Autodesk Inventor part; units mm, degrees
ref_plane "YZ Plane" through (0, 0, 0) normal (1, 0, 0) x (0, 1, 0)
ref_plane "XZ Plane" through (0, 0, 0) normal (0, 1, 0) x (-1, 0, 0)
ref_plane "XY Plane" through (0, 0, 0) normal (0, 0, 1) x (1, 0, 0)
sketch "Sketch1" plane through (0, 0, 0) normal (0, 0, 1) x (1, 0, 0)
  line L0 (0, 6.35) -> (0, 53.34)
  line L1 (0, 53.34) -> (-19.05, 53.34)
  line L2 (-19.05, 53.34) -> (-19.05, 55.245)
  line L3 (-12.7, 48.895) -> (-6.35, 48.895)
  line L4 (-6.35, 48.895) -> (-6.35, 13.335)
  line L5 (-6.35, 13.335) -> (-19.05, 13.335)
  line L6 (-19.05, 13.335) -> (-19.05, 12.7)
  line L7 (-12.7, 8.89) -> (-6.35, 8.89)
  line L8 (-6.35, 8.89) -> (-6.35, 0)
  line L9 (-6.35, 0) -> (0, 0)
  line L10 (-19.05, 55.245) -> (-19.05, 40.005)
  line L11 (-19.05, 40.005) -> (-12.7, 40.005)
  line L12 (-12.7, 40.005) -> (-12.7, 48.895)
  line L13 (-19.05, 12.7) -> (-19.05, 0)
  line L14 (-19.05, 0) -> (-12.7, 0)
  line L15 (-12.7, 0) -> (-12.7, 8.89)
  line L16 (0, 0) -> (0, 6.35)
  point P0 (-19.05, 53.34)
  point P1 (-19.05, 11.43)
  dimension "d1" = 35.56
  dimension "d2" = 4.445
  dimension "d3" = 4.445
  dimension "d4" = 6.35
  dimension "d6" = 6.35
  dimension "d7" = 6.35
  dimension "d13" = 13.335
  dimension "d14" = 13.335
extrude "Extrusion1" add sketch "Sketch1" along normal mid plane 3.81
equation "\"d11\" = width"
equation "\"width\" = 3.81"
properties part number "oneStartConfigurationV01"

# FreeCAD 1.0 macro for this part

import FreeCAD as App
import Part
import Sketcher
from FreeCAD import Vector
Q = App.Units.Quantity

doc = App.newDocument("Part")
body = doc.addObject("PartDesign::Body", "Body")

sketch1 = body.newObject("Sketcher::SketchObject", "Sketch")
sketch1.AttachmentSupport = (doc.getObject("XY_Plane"), [""])
sketch1.MapMode = "FlatFace"
sketch1.addGeometry([
    Part.LineSegment(Vector(0, 0, 0), Vector(0, 53, 0)),
    Part.LineSegment(Vector(0, 53, 0), Vector(-19, 53, 0)),
    Part.LineSegment(Vector(-19, 53, 0), Vector(-19, 40, 0)),
    Part.LineSegment(Vector(-19, 40, 0), Vector(-13, 40, 0)),
    Part.LineSegment(Vector(-13, 40, 0), Vector(-13, 49, 0)),
    Part.LineSegment(Vector(-13, 49, 0), Vector(-6, 49, 0)),
    Part.LineSegment(Vector(-6, 49, 0), Vector(-6, 13, 0)),
    Part.LineSegment(Vector(-6, 13, 0), Vector(-19, 13, 0)),
    Part.LineSegment(Vector(-19, 13, 0), Vector(-19, 0, 0)),
    Part.LineSegment(Vector(-19, 0, 0), Vector(-13, 0, 0)),
    Part.LineSegment(Vector(-13, 0, 0), Vector(-13, 9, 0)),
    Part.LineSegment(Vector(-13, 9, 0), Vector(-6, 9, 0)),
    Part.LineSegment(Vector(-6, 9, 0), Vector(-6, 0, 0)),
    Part.LineSegment(Vector(-6, 0, 0), Vector(0, 0, 0)),
], False)
sketch1.addConstraint([
    Sketcher.Constraint("Coincident", 0, 2, 1, 1),
    Sketcher.Constraint("Coincident", 1, 2, 2, 1),
    Sketcher.Constraint("Coincident", 2, 2, 3, 1),
    Sketcher.Constraint("Coincident", 3, 2, 4, 1),
    Sketcher.Constraint("Coincident", 4, 2, 5, 1),
    Sketcher.Constraint("Coincident", 5, 2, 6, 1),
    Sketcher.Constraint("Coincident", 6, 2, 7, 1),
    Sketcher.Constraint("Coincident", 7, 2, 8, 1),
    Sketcher.Constraint("Coincident", 8, 2, 9, 1),
    Sketcher.Constraint("Coincident", 9, 2, 10, 1),
    Sketcher.Constraint("Coincident", 10, 2, 11, 1),
    Sketcher.Constraint("Coincident", 11, 2, 12, 1),
    Sketcher.Constraint("Coincident", 12, 2, 13, 1),
    Sketcher.Constraint("Coincident", 13, 2, 0, 1),
    Sketcher.Constraint("Vertical", 0),
    Sketcher.Constraint("Horizontal", 1),
    Sketcher.Constraint("Vertical", 2),
    Sketcher.Constraint("Horizontal", 3),
    Sketcher.Constraint("Vertical", 4),
    Sketcher.Constraint("Horizontal", 5),
    Sketcher.Constraint("Vertical", 6),
    Sketcher.Constraint("Horizontal", 7),
    Sketcher.Constraint("Vertical", 8),
    Sketcher.Constraint("Horizontal", 9),
    Sketcher.Constraint("Vertical", 10),
    Sketcher.Constraint("Horizontal", 11),
    Sketcher.Constraint("Vertical", 12),
    Sketcher.Constraint("Horizontal", 13),
    Sketcher.Constraint("Coincident", 13, 2, -1, 1),
    Sketcher.Constraint("PointOnObject", 8, 2, -1),
    Sketcher.Constraint("Vertical", 2, 2, 7, 2),
    Sketcher.Constraint("Vertical", 4, 2, 9, 2),
    Sketcher.Constraint("Vertical", 6, 2, 11, 2),
    Sketcher.Constraint("Equal", 3, 5),
    Sketcher.Constraint("Equal", 11, 13),
    Sketcher.Constraint("Equal", 2, 8),
    Sketcher.Constraint("Equal", 4, 10),
    Sketcher.Constraint("DistanceY", 6, 2, 6, 1, Q("1.4 in")),
    Sketcher.Constraint("DistanceX", 3, 1, 3, 2, Q("0.25 in")),
    Sketcher.Constraint("DistanceY", 2, 2, 2, 1, Q("0.525 in")),
    Sketcher.Constraint("DistanceY", 0, 1, 0, 2, Q("2.1 in")),
])
pad1 = body.newObject("PartDesign::Pad", "Pad")
pad1.Profile = sketch1
pad1.Length = Q("0.15 in")
pad1.Midplane = True

doc.recompute()
